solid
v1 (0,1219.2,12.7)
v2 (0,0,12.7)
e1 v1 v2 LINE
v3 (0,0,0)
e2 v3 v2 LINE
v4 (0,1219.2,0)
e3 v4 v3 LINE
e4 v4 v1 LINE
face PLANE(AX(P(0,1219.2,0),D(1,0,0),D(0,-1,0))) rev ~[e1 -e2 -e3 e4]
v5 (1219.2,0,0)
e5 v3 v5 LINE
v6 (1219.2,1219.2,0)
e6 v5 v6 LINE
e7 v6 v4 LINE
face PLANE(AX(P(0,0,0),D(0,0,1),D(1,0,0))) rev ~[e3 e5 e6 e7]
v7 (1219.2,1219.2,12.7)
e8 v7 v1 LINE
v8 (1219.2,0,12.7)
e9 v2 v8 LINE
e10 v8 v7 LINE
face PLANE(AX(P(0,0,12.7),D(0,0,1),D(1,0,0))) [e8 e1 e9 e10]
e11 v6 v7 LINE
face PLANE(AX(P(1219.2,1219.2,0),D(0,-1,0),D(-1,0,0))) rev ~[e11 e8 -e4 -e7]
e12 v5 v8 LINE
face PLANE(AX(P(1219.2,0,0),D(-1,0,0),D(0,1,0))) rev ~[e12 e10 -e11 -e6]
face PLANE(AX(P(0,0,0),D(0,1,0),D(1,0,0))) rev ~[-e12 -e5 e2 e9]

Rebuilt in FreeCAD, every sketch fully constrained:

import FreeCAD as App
import Part
import Sketcher
from FreeCAD import Vector
Q = App.Units.Quantity


def add_polygon(sketch, points):
    """Adds a closed chain of lines whose ends are joined by coincident constraints."""
    first, n = sketch.GeometryCount, len(points)
    for a, b in zip(points, points[1:] + points[:1]):
        sketch.addGeometry(Part.LineSegment(App.Vector(*a, 0), App.Vector(*b, 0)), False)
    for i in range(n):
        sketch.addConstraint(Sketcher.Constraint("Coincident", first + i, 2, first + (i + 1) % n, 1))

doc = App.newDocument("Part")
params = doc.addObject("Spreadsheet::Sheet", "Params")
for row, (alias, value) in enumerate([
    ("sketch1_width", "48 in"),
    ("pad1_length", "0.5 in"),
], start=1):
    params.set(f"A{row}", alias)
    params.set(f"B{row}", "=" + value)
    params.setAlias(f"B{row}", alias)

body = doc.addObject("PartDesign::Body", "Body")

# Sketch on XY plane
sketch1 = body.newObject("Sketcher::SketchObject", "Sketch")
sketch1.AttachmentSupport = (doc.getObject("XY_Plane"), [""])
sketch1.MapMode = "FlatFace"
add_polygon(sketch1, [(0, 1219), (0, 0), (1219, 0), (1219, 1219)])  # lines 0-3
sketch1.addConstraint(Sketcher.Constraint("Vertical", 0))
sketch1.addConstraint(Sketcher.Constraint("Horizontal", 1))
sketch1.addConstraint(Sketcher.Constraint("Vertical", 2))
sketch1.addConstraint(Sketcher.Constraint("Horizontal", 3))
sketch1.addConstraint(Sketcher.Constraint("Coincident", 0, 2, -1, 1))
sketch1.addConstraint(Sketcher.Constraint("Equal", 3, 0))
sketch1.addConstraint(Sketcher.Constraint("DistanceX", 1, 1, 1, 2, Q("48 in")))
sketch1.setExpression("Constraints[10]", "Params.sketch1_width")
pad1 = body.newObject("PartDesign::Pad", "Pad")
pad1.Profile = sketch1
pad1.setExpression("Length", "Params.pad1_length")

doc.recompute()
